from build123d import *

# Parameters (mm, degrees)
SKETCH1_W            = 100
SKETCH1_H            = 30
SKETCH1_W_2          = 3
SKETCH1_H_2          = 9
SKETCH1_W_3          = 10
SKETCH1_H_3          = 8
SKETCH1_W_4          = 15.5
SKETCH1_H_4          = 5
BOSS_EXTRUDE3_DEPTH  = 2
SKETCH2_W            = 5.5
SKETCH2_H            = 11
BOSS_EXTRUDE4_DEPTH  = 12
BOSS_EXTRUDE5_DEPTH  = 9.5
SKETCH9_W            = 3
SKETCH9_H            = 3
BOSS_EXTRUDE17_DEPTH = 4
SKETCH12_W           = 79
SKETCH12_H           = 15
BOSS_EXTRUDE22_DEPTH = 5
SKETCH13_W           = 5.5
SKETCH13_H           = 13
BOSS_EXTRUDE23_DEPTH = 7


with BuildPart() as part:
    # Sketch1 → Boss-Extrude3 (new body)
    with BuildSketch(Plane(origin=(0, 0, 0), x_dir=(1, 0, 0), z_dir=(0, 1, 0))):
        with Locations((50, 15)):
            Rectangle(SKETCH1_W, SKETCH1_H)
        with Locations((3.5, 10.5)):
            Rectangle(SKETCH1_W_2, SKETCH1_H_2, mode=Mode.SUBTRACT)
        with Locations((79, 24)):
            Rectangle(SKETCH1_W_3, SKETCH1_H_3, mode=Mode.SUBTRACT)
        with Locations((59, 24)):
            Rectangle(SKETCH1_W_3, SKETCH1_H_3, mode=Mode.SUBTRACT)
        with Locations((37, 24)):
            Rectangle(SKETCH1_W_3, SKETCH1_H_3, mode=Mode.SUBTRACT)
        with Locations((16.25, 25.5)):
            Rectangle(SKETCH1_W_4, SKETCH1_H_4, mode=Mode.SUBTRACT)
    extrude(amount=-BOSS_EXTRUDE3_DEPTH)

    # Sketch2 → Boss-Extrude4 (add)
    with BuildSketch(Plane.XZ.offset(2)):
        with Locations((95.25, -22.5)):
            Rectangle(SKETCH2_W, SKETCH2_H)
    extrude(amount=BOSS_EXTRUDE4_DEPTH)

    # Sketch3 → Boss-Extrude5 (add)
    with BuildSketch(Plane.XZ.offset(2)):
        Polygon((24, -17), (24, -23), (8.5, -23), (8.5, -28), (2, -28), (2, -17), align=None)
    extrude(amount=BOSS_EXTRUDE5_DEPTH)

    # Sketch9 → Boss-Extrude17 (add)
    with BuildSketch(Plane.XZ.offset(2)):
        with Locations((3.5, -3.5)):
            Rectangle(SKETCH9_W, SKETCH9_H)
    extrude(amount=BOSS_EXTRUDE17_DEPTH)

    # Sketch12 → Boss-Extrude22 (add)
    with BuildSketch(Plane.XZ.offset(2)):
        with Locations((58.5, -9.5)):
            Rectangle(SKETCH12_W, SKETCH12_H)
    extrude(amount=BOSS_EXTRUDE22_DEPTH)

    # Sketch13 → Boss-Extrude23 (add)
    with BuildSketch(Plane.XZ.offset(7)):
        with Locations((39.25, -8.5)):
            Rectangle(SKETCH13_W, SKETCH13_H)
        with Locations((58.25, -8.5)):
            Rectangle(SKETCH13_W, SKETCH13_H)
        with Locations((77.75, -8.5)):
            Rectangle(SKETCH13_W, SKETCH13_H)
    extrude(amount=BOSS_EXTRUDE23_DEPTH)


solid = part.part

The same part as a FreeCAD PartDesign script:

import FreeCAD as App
import Part
import Sketcher

V = App.Vector
Q = App.Units.Quantity

doc = App.newDocument("Part")
params = doc.addObject("Spreadsheet::Sheet", "Params")
for row, (alias, value) in enumerate([
    ("sketch1_width", "100 mm"),
    ("sketch1_width2", "3 mm"),
    ("sketch1_width3", "10 mm"),
    ("sketch1_height", "30 mm"),
    ("sketch1_height2", "9 mm"),
    ("pad1_length", "2 mm"),
    ("sketch2_height", "11 mm"),
    ("sketch2_width", "5.5 mm"),
    ("pad2_length", "12 mm"),
    ("sketch3_width", "22 mm"),
    ("sketch3_height", "6 mm"),
    ("sketch3_height2", "11 mm"),
    ("sketch3_width2", "6.5 mm"),
    ("pad3_length", "9.5 mm"),
    ("sketch4_width", "3 mm"),
    ("pad4_length", "4 mm"),
    ("sketch5_width", "79 mm"),
    ("sketch5_height", "15 mm"),
    ("pad5_length", "5 mm"),
    ("sketch6_height", "13 mm"),
    ("sketch6_width", "5.5 mm"),
    ("pad6_length", "7 mm"),
], start=1):
    params.set(f"A{row}", alias)
    params.set(f"B{row}", "=" + value)
    params.setAlias(f"B{row}", alias)

body = doc.addObject("PartDesign::Body", "Body")

sketch1 = body.newObject("Sketcher::SketchObject", "Sketch")
sketch1.AttachmentSupport = (doc.getObject("XZ_Plane"), [""])
sketch1.MapMode = "FlatFace"
sketch1.addGeometry(Part.LineSegment(V(0, -30, 0), V(0, 0, 0)), False)
sketch1.addGeometry(Part.LineSegment(V(0, 0, 0), V(100, 0, 0)), False)
sketch1.addGeometry(Part.LineSegment(V(100, 0, 0), V(100, -30, 0)), False)
sketch1.addGeometry(Part.LineSegment(V(100, -30, 0), V(0, -30, 0)), False)
sketch1.addGeometry(Part.LineSegment(V(5, -6, 0), V(2, -6, 0)), False)
sketch1.addGeometry(Part.LineSegment(V(2, -6, 0), V(2, -15, 0)), False)
sketch1.addGeometry(Part.LineSegment(V(2, -15, 0), V(5, -15, 0)), False)
sketch1.addGeometry(Part.LineSegment(V(5, -15, 0), V(5, -6, 0)), False)
sketch1.addGeometry(Part.LineSegment(V(24, -23, 0), V(8.5, -23, 0)), False)
sketch1.addGeometry(Part.LineSegment(V(8.5, -23, 0), V(8.5, -28, 0)), False)
sketch1.addGeometry(Part.LineSegment(V(8.5, -28, 0), V(24, -28, 0)), False)
sketch1.addGeometry(Part.LineSegment(V(24, -28, 0), V(24, -23, 0)), False)
sketch1.addGeometry(Part.LineSegment(V(42, -20, 0), V(32, -20, 0)), False)
sketch1.addGeometry(Part.LineSegment(V(32, -20, 0), V(32, -28, 0)), False)
sketch1.addGeometry(Part.LineSegment(V(32, -28, 0), V(42, -28, 0)), False)
sketch1.addGeometry(Part.LineSegment(V(42, -28, 0), V(42, -20, 0)), False)
sketch1.addGeometry(Part.LineSegment(V(64, -20, 0), V(54, -20, 0)), False)
sketch1.addGeometry(Part.LineSegment(V(54, -20, 0), V(54, -28, 0)), False)
sketch1.addGeometry(Part.LineSegment(V(54, -28, 0), V(64, -28, 0)), False)
sketch1.addGeometry(Part.LineSegment(V(64, -28, 0), V(64, -20, 0)), False)
sketch1.addGeometry(Part.LineSegment(V(84, -20, 0), V(74, -20, 0)), False)
sketch1.addGeometry(Part.LineSegment(V(74, -20, 0), V(74, -28, 0)), False)
sketch1.addGeometry(Part.LineSegment(V(74, -28, 0), V(84, -28, 0)), False)
sketch1.addGeometry(Part.LineSegment(V(84, -28, 0), V(84, -20, 0)), False)
sketch1.addConstraint(Sketcher.Constraint("Coincident", 0, 2, 1, 1))
sketch1.addConstraint(Sketcher.Constraint("Coincident", 1, 2, 2, 1))
sketch1.addConstraint(Sketcher.Constraint("Coincident", 2, 2, 3, 1))
sketch1.addConstraint(Sketcher.Constraint("Coincident", 3, 2, 0, 1))
sketch1.addConstraint(Sketcher.Constraint("Coincident", 4, 2, 5, 1))
sketch1.addConstraint(Sketcher.Constraint("Coincident", 5, 2, 6, 1))
sketch1.addConstraint(Sketcher.Constraint("Coincident", 6, 2, 7, 1))
sketch1.addConstraint(Sketcher.Constraint("Coincident", 7, 2, 4, 1))
sketch1.addConstraint(Sketcher.Constraint("Coincident", 8, 2, 9, 1))
sketch1.addConstraint(Sketcher.Constraint("Coincident", 9, 2, 10, 1))
sketch1.addConstraint(Sketcher.Constraint("Coincident", 10, 2, 11, 1))
sketch1.addConstraint(Sketcher.Constraint("Coincident", 11, 2, 8, 1))
sketch1.addConstraint(Sketcher.Constraint("Coincident", 12, 2, 13, 1))
sketch1.addConstraint(Sketcher.Constraint("Coincident", 13, 2, 14, 1))
sketch1.addConstraint(Sketcher.Constraint("Coincident", 14, 2, 15, 1))
sketch1.addConstraint(Sketcher.Constraint("Coincident", 15, 2, 12, 1))
sketch1.addConstraint(Sketcher.Constraint("Coincident", 16, 2, 17, 1))
sketch1.addConstraint(Sketcher.Constraint("Coincident", 17, 2, 18, 1))
sketch1.addConstraint(Sketcher.Constraint("Coincident", 18, 2, 19, 1))
sketch1.addConstraint(Sketcher.Constraint("Coincident", 19, 2, 16, 1))
sketch1.addConstraint(Sketcher.Constraint("Coincident", 20, 2, 21, 1))
sketch1.addConstraint(Sketcher.Constraint("Coincident", 21, 2, 22, 1))
sketch1.addConstraint(Sketcher.Constraint("Coincident", 22, 2, 23, 1))
sketch1.addConstraint(Sketcher.Constraint("Coincident", 23, 2, 20, 1))
sketch1.addConstraint(Sketcher.Constraint("Vertical", 0))
sketch1.addConstraint(Sketcher.Constraint("Horizontal", 1))
sketch1.addConstraint(Sketcher.Constraint("Vertical", 2))
sketch1.addConstraint(Sketcher.Constraint("Horizontal", 3))
sketch1.addConstraint(Sketcher.Constraint("Horizontal", 4))
sketch1.addConstraint(Sketcher.Constraint("Vertical", 5))
sketch1.addConstraint(Sketcher.Constraint("Horizontal", 6))
sketch1.addConstraint(Sketcher.Constraint("Vertical", 7))
sketch1.addConstraint(Sketcher.Constraint("Horizontal", 8))
sketch1.addConstraint(Sketcher.Constraint("Vertical", 9))
sketch1.addConstraint(Sketcher.Constraint("Horizontal", 10))
sketch1.addConstraint(Sketcher.Constraint("Vertical", 11))
sketch1.addConstraint(Sketcher.Constraint("Horizontal", 12))
sketch1.addConstraint(Sketcher.Constraint("Vertical", 13))
sketch1.addConstraint(Sketcher.Constraint("Horizontal", 14))
sketch1.addConstraint(Sketcher.Constraint("Vertical", 15))
sketch1.addConstraint(Sketcher.Constraint("Horizontal", 16))
sketch1.addConstraint(Sketcher.Constraint("Vertical", 17))
sketch1.addConstraint(Sketcher.Constraint("Horizontal", 18))
sketch1.addConstraint(Sketcher.Constraint("Vertical", 19))
sketch1.addConstraint(Sketcher.Constraint("Horizontal", 20))
sketch1.addConstraint(Sketcher.Constraint("Vertical", 21))
sketch1.addConstraint(Sketcher.Constraint("Horizontal", 22))
sketch1.addConstraint(Sketcher.Constraint("Vertical", 23))
sketch1.addConstraint(Sketcher.Constraint("Coincident", 0, 2, -1, 1))
sketch1.addConstraint(Sketcher.Constraint("Horizontal", 10, 2, 13, 2))
sketch1.addConstraint(Sketcher.Constraint("Horizontal", 15, 2, 16, 2))
sketch1.addConstraint(Sketcher.Constraint("Horizontal", 14, 2, 17, 2))
sketch1.addConstraint(Sketcher.Constraint("Horizontal", 19, 2, 20, 2))
sketch1.addConstraint(Sketcher.Constraint("Horizontal", 18, 2, 21, 2))
sketch1.addConstraint(Sketcher.Constraint("Equal", 14, 16))
sketch1.addConstraint(Sketcher.Constraint("Equal", 18, 20))
sketch1.addConstraint(Sketcher.Constraint("DistanceX", 1, 1, 1, 2, Q("100 mm")))
sketch1.addConstraint(Sketcher.Constraint("DistanceX", 4, 2, 4, 1, Q("3 mm")))
sketch1.addConstraint(Sketcher.Constraint("DistanceX", 12, 2, 12, 1, Q("10 mm")))
sketch1.addConstraint(Sketcher.Constraint("DistanceY", 0, 1, 0, 2, Q("30 mm")))
sketch1.addConstraint(Sketcher.Constraint("DistanceY", 5, 2, 5, 1, Q("9 mm")))
sketch1.addConstraint(Sketcher.Constraint("DistanceY", 9, 2, 9, 1, Q("5 mm")))
sketch1.addConstraint(Sketcher.Constraint("DistanceY", 13, 2, 13, 1, Q("8 mm")))
sketch1.addConstraint(Sketcher.Constraint("DistanceX", 8, 2, 8, 1, Q("15.5 mm")))
sketch1.addConstraint(Sketcher.Constraint("DistanceX", -1, 1, 4, 2, Q("2 mm")))
sketch1.addConstraint(Sketcher.Constraint("DistanceY", 4, 2, -1, 1, Q("6 mm")))
sketch1.addConstraint(Sketcher.Constraint("DistanceY", 8, 2, -1, 1, Q("23 mm")))
sketch1.addConstraint(Sketcher.Constraint("DistanceX", -1, 1, 10, 2, Q("24 mm")))
sketch1.addConstraint(Sketcher.Constraint("DistanceX", -1, 1, 12, 2, Q("32 mm")))
sketch1.addConstraint(Sketcher.Constraint("DistanceX", -1, 1, 16, 2, Q("54 mm")))
sketch1.addConstraint(Sketcher.Constraint("DistanceX", -1, 1, 20, 2, Q("74 mm")))
sketch1.setExpression("Constraints[56]", "Params.sketch1_width")
sketch1.setExpression("Constraints[57]", "Params.sketch1_width2")
sketch1.setExpression("Constraints[58]", "Params.sketch1_width3")
sketch1.setExpression("Constraints[59]", "Params.sketch1_height")
sketch1.setExpression("Constraints[60]", "Params.sketch1_height2")
pad1 = body.newObject("PartDesign::Pad", "Pad")
pad1.Profile = sketch1
pad1.setExpression("Length", "Params.pad1_length")

sketch2 = body.newObject("Sketcher::SketchObject", "Sketch001")
sketch2.AttachmentSupport = (doc.getObject("XZ_Plane"), [""])
sketch2.MapMode = "FlatFace"
sketch2.AttachmentOffset = App.Placement(V(0, 0, 2), App.Rotation())
sketch2.addGeometry(Part.LineSegment(V(92, -17, 0), V(92, -28, 0)), False)
sketch2.addGeometry(Part.LineSegment(V(92, -28, 0), V(98, -28, 0)), False)
sketch2.addGeometry(Part.LineSegment(V(98, -28, 0), V(98, -17, 0)), False)
sketch2.addGeometry(Part.LineSegment(V(98, -17, 0), V(92, -17, 0)), False)
sketch2.addConstraint(Sketcher.Constraint("Coincident", 0, 2, 1, 1))
sketch2.addConstraint(Sketcher.Constraint("Coincident", 1, 2, 2, 1))
sketch2.addConstraint(Sketcher.Constraint("Coincident", 2, 2, 3, 1))
sketch2.addConstraint(Sketcher.Constraint("Coincident", 3, 2, 0, 1))
sketch2.addConstraint(Sketcher.Constraint("Vertical", 0))
sketch2.addConstraint(Sketcher.Constraint("Horizontal", 1))
sketch2.addConstraint(Sketcher.Constraint("Vertical", 2))
sketch2.addConstraint(Sketcher.Constraint("Horizontal", 3))
sketch2.addConstraint(Sketcher.Constraint("DistanceY", 0, 2, 0, 1, Q("11 mm")))
sketch2.addConstraint(Sketcher.Constraint("DistanceX", 1, 1, 1, 2, Q("5.5 mm")))
sketch2.addConstraint(Sketcher.Constraint("DistanceY", 0, 2, -1, 1, Q("28 mm")))
sketch2.addConstraint(Sketcher.Constraint("DistanceX", -1, 1, 1, 2, Q("98 mm")))
sketch2.setExpression("Constraints[8]", "Params.sketch2_height")
sketch2.setExpression("Constraints[9]", "Params.sketch2_width")
pad2 = body.newObject("PartDesign::Pad", "Pad001")
pad2.Profile = sketch2
pad2.setExpression("Length", "Params.pad2_length")

sketch3 = body.newObject("Sketcher::SketchObject", "Sketch002")
sketch3.AttachmentSupport = (doc.getObject("XZ_Plane"), [""])
sketch3.MapMode = "FlatFace"
sketch3.AttachmentOffset = App.Placement(V(0, 0, 2), App.Rotation())
sketch3.addGeometry(Part.LineSegment(V(24, -23, 0), V(24, -17, 0)), False)
sketch3.addGeometry(Part.LineSegment(V(24, -17, 0), V(2, -17, 0)), False)
sketch3.addGeometry(Part.LineSegment(V(2, -17, 0), V(2, -28, 0)), False)
sketch3.addGeometry(Part.LineSegment(V(2, -28, 0), V(8, -28, 0)), False)
sketch3.addGeometry(Part.LineSegment(V(8, -28, 0), V(8, -23, 0)), False)
sketch3.addGeometry(Part.LineSegment(V(8, -23, 0), V(24, -23, 0)), False)
sketch3.addConstraint(Sketcher.Constraint("Coincident", 0, 2, 1, 1))
sketch3.addConstraint(Sketcher.Constraint("Coincident", 1, 2, 2, 1))
sketch3.addConstraint(Sketcher.Constraint("Coincident", 2, 2, 3, 1))
sketch3.addConstraint(Sketcher.Constraint("Coincident", 3, 2, 4, 1))
sketch3.addConstraint(Sketcher.Constraint("Coincident", 4, 2, 5, 1))
sketch3.addConstraint(Sketcher.Constraint("Coincident", 5, 2, 0, 1))
sketch3.addConstraint(Sketcher.Constraint("Vertical", 0))
sketch3.addConstraint(Sketcher.Constraint("Horizontal", 1))
sketch3.addConstraint(Sketcher.Constraint("Vertical", 2))
sketch3.addConstraint(Sketcher.Constraint("Horizontal", 3))
sketch3.addConstraint(Sketcher.Constraint("Vertical", 4))
sketch3.addConstraint(Sketcher.Constraint("Horizontal", 5))
sketch3.addConstraint(Sketcher.Constraint("DistanceX", 1, 2, 1, 1, Q("22 mm")))
sketch3.addConstraint(Sketcher.Constraint("DistanceY", 0, 1, 0, 2, Q("6 mm")))
sketch3.addConstraint(Sketcher.Constraint("DistanceY", 2, 2, 2, 1, Q("11 mm")))
sketch3.addConstraint(Sketcher.Constraint("DistanceX", 3, 1, 3, 2, Q("6.5 mm")))
sketch3.addConstraint(Sketcher.Constraint("DistanceX", -1, 1, 0, 2, Q("24 mm")))
sketch3.addConstraint(Sketcher.Constraint("DistanceY", 0, 2, -1, 1, Q("17 mm")))
sketch3.setExpression("Constraints[12]", "Params.sketch3_width")
sketch3.setExpression("Constraints[13]", "Params.sketch3_height")
sketch3.setExpression("Constraints[14]", "Params.sketch3_height2")
sketch3.setExpression("Constraints[15]", "Params.sketch3_width2")
pad3 = body.newObject("PartDesign::Pad", "Pad002")
pad3.Profile = sketch3
pad3.setExpression("Length", "Params.pad3_length")

sketch4 = body.newObject("Sketcher::SketchObject", "Sketch003")
sketch4.AttachmentSupport = (doc.getObject("XZ_Plane"), [""])
sketch4.MapMode = "FlatFace"
sketch4.AttachmentOffset = App.Placement(V(0, 0, 2), App.Rotation())
sketch4.addGeometry(Part.LineSegment(V(2, -2, 0), V(2, -5, 0)), False)
sketch4.addGeometry(Part.LineSegment(V(2, -5, 0), V(5, -5, 0)), False)
sketch4.addGeometry(Part.LineSegment(V(5, -5, 0), V(5, -2, 0)), False)
sketch4.addGeometry(Part.LineSegment(V(5, -2, 0), V(2, -2, 0)), False)
sketch4.addConstraint(Sketcher.Constraint("Coincident", 0, 2, 1, 1))
sketch4.addConstraint(Sketcher.Constraint("Coincident", 1, 2, 2, 1))
sketch4.addConstraint(Sketcher.Constraint("Coincident", 2, 2, 3, 1))
sketch4.addConstraint(Sketcher.Constraint("Coincident", 3, 2, 0, 1))
sketch4.addConstraint(Sketcher.Constraint("Vertical", 0))
sketch4.addConstraint(Sketcher.Constraint("Horizontal", 1))
sketch4.addConstraint(Sketcher.Constraint("Vertical", 2))
sketch4.addConstraint(Sketcher.Constraint("Horizontal", 3))
sketch4.addConstraint(Sketcher.Constraint("Equal", 3, 0))
sketch4.addConstraint(Sketcher.Constraint("DistanceX", 1, 1, 1, 2, Q("3 mm")))
sketch4.addConstraint(Sketcher.Constraint("DistanceX", -1, 1, 0, 2, Q("2 mm")))
sketch4.addConstraint(Sketcher.Constraint("DistanceY", 0, 2, -1, 1, Q("5 mm")))
sketch4.setExpression("Constraints[9]", "Params.sketch4_width")
pad4 = body.newObject("PartDesign::Pad", "Pad003")
pad4.Profile = sketch4
pad4.setExpression("Length", "Params.pad4_length")

sketch5 = body.newObject("Sketcher::SketchObject", "Sketch004")
sketch5.AttachmentSupport = (doc.getObject("XZ_Plane"), [""])
sketch5.MapMode = "FlatFace"
sketch5.AttachmentOffset = App.Placement(V(0, 0, 2), App.Rotation())
sketch5.addGeometry(Part.LineSegment(V(19, -2, 0), V(19, -17, 0)), False)
sketch5.addGeometry(Part.LineSegment(V(19, -17, 0), V(98, -17, 0)), False)
sketch5.addGeometry(Part.LineSegment(V(98, -17, 0), V(98, -2, 0)), False)
sketch5.addGeometry(Part.LineSegment(V(98, -2, 0), V(19, -2, 0)), False)
sketch5.addConstraint(Sketcher.Constraint("Coincident", 0, 2, 1, 1))
sketch5.addConstraint(Sketcher.Constraint("Coincident", 1, 2, 2, 1))
sketch5.addConstraint(Sketcher.Constraint("Coincident", 2, 2, 3, 1))
sketch5.addConstraint(Sketcher.Constraint("Coincident", 3, 2, 0, 1))
sketch5.addConstraint(Sketcher.Constraint("Vertical", 0))
sketch5.addConstraint(Sketcher.Constraint("Horizontal", 1))
sketch5.addConstraint(Sketcher.Constraint("Vertical", 2))
sketch5.addConstraint(Sketcher.Constraint("Horizontal", 3))
sketch5.addConstraint(Sketcher.Constraint("DistanceX", 1, 1, 1, 2, Q("79 mm")))
sketch5.addConstraint(Sketcher.Constraint("DistanceY", 0, 2, 0, 1, Q("15 mm")))
sketch5.addConstraint(Sketcher.Constraint("DistanceX", -1, 1, 0, 2, Q("19 mm")))
sketch5.addConstraint(Sketcher.Constraint("DistanceY", 0, 2, -1, 1, Q("17 mm")))
sketch5.setExpression("Constraints[8]", "Params.sketch5_width")
sketch5.setExpression("Constraints[9]", "Params.sketch5_height")
pad5 = body.newObject("PartDesign::Pad", "Pad004")
pad5.Profile = sketch5
pad5.setExpression("Length", "Params.pad5_length")

sketch6 = body.newObject("Sketcher::SketchObject", "Sketch005")
sketch6.AttachmentSupport = (doc.getObject("XZ_Plane"), [""])
sketch6.MapMode = "FlatFace"
sketch6.AttachmentOffset = App.Placement(V(0, 0, 7), App.Rotation())
sketch6.addGeometry(Part.LineSegment(V(36, -2, 0), V(36, -15, 0)), False)
sketch6.addGeometry(Part.LineSegment(V(36, -15, 0), V(42, -15, 0)), False)
sketch6.addGeometry(Part.LineSegment(V(42, -15, 0), V(42, -2, 0)), False)
sketch6.addGeometry(Part.LineSegment(V(42, -2, 0), V(36, -2, 0)), False)
sketch6.addGeometry(Part.LineSegment(V(56, -2, 0), V(56, -15, 0)), False)
sketch6.addGeometry(Part.LineSegment(V(56, -15, 0), V(61, -15, 0)), False)
sketch6.addGeometry(Part.LineSegment(V(61, -15, 0), V(61, -2, 0)), False)
sketch6.addGeometry(Part.LineSegment(V(61, -2, 0), V(56, -2, 0)), False)
sketch6.addGeometry(Part.LineSegment(V(75, -2, 0), V(75, -15, 0)), False)
sketch6.addGeometry(Part.LineSegment(V(75, -15, 0), V(80, -15, 0)), False)
sketch6.addGeometry(Part.LineSegment(V(80, -15, 0), V(80, -2, 0)), False)
sketch6.addGeometry(Part.LineSegment(V(80, -2, 0), V(75, -2, 0)), False)
sketch6.addConstraint(Sketcher.Constraint("Coincident", 0, 2, 1, 1))
sketch6.addConstraint(Sketcher.Constraint("Coincident", 1, 2, 2, 1))
sketch6.addConstraint(Sketcher.Constraint("Coincident", 2, 2, 3, 1))
sketch6.addConstraint(Sketcher.Constraint("Coincident", 3, 2, 0, 1))
sketch6.addConstraint(Sketcher.Constraint("Coincident", 4, 2, 5, 1))
sketch6.addConstraint(Sketcher.Constraint("Coincident", 5, 2, 6, 1))
sketch6.addConstraint(Sketcher.Constraint("Coincident", 6, 2, 7, 1))
sketch6.addConstraint(Sketcher.Constraint("Coincident", 7, 2, 4, 1))
sketch6.addConstraint(Sketcher.Constraint("Coincident", 8, 2, 9, 1))
sketch6.addConstraint(Sketcher.Constraint("Coincident", 9, 2, 10, 1))
sketch6.addConstraint(Sketcher.Constraint("Coincident", 10, 2, 11, 1))
sketch6.addConstraint(Sketcher.Constraint("Coincident", 11, 2, 8, 1))
sketch6.addConstraint(Sketcher.Constraint("Vertical", 0))
sketch6.addConstraint(Sketcher.Constraint("Horizontal", 1))
sketch6.addConstraint(Sketcher.Constraint("Vertical", 2))
sketch6.addConstraint(Sketcher.Constraint("Horizontal", 3))
sketch6.addConstraint(Sketcher.Constraint("Vertical", 4))
sketch6.addConstraint(Sketcher.Constraint("Horizontal", 5))
sketch6.addConstraint(Sketcher.Constraint("Vertical", 6))
sketch6.addConstraint(Sketcher.Constraint("Horizontal", 7))
sketch6.addConstraint(Sketcher.Constraint("Vertical", 8))
sketch6.addConstraint(Sketcher.Constraint("Horizontal", 9))
sketch6.addConstraint(Sketcher.Constraint("Vertical", 10))
sketch6.addConstraint(Sketcher.Constraint("Horizontal", 11))
sketch6.addConstraint(Sketcher.Constraint("Horizontal", 1, 2, 4, 2))
sketch6.addConstraint(Sketcher.Constraint("Horizontal", 3, 2, 6, 2))
sketch6.addConstraint(Sketcher.Constraint("Horizontal", 5, 2, 8, 2))
sketch6.addConstraint(Sketcher.Constraint("Horizontal", 7, 2, 10, 2))
sketch6.addConstraint(Sketcher.Constraint("Equal", 3, 5))
sketch6.addConstraint(Sketcher.Constraint("Equal", 7, 9))
sketch6.addConstraint(Sketcher.Constraint("DistanceY", 0, 2, 0, 1, Q("13 mm")))
sketch6.addConstraint(Sketcher.Constraint("DistanceX", 1, 1, 1, 2, Q("5.5 mm")))
sketch6.addConstraint(Sketcher.Constraint("DistanceY", 0, 2, -1, 1, Q("15 mm")))
sketch6.addConstraint(Sketcher.Constraint("DistanceX", -1, 1, 1, 2, Q("42 mm")))
sketch6.addConstraint(Sketcher.Constraint("DistanceX", -1, 1, 5, 2, Q("61 mm")))
sketch6.addConstraint(Sketcher.Constraint("DistanceX", -1, 1, 8, 2, Q("75 mm")))
sketch6.setExpression("Constraints[30]", "Params.sketch6_height")
sketch6.setExpression("Constraints[31]", "Params.sketch6_width")
pad6 = body.newObject("PartDesign::Pad", "Pad005")
pad6.Profile = sketch6
pad6.setExpression("Length", "Params.pad6_length")

doc.recompute()
